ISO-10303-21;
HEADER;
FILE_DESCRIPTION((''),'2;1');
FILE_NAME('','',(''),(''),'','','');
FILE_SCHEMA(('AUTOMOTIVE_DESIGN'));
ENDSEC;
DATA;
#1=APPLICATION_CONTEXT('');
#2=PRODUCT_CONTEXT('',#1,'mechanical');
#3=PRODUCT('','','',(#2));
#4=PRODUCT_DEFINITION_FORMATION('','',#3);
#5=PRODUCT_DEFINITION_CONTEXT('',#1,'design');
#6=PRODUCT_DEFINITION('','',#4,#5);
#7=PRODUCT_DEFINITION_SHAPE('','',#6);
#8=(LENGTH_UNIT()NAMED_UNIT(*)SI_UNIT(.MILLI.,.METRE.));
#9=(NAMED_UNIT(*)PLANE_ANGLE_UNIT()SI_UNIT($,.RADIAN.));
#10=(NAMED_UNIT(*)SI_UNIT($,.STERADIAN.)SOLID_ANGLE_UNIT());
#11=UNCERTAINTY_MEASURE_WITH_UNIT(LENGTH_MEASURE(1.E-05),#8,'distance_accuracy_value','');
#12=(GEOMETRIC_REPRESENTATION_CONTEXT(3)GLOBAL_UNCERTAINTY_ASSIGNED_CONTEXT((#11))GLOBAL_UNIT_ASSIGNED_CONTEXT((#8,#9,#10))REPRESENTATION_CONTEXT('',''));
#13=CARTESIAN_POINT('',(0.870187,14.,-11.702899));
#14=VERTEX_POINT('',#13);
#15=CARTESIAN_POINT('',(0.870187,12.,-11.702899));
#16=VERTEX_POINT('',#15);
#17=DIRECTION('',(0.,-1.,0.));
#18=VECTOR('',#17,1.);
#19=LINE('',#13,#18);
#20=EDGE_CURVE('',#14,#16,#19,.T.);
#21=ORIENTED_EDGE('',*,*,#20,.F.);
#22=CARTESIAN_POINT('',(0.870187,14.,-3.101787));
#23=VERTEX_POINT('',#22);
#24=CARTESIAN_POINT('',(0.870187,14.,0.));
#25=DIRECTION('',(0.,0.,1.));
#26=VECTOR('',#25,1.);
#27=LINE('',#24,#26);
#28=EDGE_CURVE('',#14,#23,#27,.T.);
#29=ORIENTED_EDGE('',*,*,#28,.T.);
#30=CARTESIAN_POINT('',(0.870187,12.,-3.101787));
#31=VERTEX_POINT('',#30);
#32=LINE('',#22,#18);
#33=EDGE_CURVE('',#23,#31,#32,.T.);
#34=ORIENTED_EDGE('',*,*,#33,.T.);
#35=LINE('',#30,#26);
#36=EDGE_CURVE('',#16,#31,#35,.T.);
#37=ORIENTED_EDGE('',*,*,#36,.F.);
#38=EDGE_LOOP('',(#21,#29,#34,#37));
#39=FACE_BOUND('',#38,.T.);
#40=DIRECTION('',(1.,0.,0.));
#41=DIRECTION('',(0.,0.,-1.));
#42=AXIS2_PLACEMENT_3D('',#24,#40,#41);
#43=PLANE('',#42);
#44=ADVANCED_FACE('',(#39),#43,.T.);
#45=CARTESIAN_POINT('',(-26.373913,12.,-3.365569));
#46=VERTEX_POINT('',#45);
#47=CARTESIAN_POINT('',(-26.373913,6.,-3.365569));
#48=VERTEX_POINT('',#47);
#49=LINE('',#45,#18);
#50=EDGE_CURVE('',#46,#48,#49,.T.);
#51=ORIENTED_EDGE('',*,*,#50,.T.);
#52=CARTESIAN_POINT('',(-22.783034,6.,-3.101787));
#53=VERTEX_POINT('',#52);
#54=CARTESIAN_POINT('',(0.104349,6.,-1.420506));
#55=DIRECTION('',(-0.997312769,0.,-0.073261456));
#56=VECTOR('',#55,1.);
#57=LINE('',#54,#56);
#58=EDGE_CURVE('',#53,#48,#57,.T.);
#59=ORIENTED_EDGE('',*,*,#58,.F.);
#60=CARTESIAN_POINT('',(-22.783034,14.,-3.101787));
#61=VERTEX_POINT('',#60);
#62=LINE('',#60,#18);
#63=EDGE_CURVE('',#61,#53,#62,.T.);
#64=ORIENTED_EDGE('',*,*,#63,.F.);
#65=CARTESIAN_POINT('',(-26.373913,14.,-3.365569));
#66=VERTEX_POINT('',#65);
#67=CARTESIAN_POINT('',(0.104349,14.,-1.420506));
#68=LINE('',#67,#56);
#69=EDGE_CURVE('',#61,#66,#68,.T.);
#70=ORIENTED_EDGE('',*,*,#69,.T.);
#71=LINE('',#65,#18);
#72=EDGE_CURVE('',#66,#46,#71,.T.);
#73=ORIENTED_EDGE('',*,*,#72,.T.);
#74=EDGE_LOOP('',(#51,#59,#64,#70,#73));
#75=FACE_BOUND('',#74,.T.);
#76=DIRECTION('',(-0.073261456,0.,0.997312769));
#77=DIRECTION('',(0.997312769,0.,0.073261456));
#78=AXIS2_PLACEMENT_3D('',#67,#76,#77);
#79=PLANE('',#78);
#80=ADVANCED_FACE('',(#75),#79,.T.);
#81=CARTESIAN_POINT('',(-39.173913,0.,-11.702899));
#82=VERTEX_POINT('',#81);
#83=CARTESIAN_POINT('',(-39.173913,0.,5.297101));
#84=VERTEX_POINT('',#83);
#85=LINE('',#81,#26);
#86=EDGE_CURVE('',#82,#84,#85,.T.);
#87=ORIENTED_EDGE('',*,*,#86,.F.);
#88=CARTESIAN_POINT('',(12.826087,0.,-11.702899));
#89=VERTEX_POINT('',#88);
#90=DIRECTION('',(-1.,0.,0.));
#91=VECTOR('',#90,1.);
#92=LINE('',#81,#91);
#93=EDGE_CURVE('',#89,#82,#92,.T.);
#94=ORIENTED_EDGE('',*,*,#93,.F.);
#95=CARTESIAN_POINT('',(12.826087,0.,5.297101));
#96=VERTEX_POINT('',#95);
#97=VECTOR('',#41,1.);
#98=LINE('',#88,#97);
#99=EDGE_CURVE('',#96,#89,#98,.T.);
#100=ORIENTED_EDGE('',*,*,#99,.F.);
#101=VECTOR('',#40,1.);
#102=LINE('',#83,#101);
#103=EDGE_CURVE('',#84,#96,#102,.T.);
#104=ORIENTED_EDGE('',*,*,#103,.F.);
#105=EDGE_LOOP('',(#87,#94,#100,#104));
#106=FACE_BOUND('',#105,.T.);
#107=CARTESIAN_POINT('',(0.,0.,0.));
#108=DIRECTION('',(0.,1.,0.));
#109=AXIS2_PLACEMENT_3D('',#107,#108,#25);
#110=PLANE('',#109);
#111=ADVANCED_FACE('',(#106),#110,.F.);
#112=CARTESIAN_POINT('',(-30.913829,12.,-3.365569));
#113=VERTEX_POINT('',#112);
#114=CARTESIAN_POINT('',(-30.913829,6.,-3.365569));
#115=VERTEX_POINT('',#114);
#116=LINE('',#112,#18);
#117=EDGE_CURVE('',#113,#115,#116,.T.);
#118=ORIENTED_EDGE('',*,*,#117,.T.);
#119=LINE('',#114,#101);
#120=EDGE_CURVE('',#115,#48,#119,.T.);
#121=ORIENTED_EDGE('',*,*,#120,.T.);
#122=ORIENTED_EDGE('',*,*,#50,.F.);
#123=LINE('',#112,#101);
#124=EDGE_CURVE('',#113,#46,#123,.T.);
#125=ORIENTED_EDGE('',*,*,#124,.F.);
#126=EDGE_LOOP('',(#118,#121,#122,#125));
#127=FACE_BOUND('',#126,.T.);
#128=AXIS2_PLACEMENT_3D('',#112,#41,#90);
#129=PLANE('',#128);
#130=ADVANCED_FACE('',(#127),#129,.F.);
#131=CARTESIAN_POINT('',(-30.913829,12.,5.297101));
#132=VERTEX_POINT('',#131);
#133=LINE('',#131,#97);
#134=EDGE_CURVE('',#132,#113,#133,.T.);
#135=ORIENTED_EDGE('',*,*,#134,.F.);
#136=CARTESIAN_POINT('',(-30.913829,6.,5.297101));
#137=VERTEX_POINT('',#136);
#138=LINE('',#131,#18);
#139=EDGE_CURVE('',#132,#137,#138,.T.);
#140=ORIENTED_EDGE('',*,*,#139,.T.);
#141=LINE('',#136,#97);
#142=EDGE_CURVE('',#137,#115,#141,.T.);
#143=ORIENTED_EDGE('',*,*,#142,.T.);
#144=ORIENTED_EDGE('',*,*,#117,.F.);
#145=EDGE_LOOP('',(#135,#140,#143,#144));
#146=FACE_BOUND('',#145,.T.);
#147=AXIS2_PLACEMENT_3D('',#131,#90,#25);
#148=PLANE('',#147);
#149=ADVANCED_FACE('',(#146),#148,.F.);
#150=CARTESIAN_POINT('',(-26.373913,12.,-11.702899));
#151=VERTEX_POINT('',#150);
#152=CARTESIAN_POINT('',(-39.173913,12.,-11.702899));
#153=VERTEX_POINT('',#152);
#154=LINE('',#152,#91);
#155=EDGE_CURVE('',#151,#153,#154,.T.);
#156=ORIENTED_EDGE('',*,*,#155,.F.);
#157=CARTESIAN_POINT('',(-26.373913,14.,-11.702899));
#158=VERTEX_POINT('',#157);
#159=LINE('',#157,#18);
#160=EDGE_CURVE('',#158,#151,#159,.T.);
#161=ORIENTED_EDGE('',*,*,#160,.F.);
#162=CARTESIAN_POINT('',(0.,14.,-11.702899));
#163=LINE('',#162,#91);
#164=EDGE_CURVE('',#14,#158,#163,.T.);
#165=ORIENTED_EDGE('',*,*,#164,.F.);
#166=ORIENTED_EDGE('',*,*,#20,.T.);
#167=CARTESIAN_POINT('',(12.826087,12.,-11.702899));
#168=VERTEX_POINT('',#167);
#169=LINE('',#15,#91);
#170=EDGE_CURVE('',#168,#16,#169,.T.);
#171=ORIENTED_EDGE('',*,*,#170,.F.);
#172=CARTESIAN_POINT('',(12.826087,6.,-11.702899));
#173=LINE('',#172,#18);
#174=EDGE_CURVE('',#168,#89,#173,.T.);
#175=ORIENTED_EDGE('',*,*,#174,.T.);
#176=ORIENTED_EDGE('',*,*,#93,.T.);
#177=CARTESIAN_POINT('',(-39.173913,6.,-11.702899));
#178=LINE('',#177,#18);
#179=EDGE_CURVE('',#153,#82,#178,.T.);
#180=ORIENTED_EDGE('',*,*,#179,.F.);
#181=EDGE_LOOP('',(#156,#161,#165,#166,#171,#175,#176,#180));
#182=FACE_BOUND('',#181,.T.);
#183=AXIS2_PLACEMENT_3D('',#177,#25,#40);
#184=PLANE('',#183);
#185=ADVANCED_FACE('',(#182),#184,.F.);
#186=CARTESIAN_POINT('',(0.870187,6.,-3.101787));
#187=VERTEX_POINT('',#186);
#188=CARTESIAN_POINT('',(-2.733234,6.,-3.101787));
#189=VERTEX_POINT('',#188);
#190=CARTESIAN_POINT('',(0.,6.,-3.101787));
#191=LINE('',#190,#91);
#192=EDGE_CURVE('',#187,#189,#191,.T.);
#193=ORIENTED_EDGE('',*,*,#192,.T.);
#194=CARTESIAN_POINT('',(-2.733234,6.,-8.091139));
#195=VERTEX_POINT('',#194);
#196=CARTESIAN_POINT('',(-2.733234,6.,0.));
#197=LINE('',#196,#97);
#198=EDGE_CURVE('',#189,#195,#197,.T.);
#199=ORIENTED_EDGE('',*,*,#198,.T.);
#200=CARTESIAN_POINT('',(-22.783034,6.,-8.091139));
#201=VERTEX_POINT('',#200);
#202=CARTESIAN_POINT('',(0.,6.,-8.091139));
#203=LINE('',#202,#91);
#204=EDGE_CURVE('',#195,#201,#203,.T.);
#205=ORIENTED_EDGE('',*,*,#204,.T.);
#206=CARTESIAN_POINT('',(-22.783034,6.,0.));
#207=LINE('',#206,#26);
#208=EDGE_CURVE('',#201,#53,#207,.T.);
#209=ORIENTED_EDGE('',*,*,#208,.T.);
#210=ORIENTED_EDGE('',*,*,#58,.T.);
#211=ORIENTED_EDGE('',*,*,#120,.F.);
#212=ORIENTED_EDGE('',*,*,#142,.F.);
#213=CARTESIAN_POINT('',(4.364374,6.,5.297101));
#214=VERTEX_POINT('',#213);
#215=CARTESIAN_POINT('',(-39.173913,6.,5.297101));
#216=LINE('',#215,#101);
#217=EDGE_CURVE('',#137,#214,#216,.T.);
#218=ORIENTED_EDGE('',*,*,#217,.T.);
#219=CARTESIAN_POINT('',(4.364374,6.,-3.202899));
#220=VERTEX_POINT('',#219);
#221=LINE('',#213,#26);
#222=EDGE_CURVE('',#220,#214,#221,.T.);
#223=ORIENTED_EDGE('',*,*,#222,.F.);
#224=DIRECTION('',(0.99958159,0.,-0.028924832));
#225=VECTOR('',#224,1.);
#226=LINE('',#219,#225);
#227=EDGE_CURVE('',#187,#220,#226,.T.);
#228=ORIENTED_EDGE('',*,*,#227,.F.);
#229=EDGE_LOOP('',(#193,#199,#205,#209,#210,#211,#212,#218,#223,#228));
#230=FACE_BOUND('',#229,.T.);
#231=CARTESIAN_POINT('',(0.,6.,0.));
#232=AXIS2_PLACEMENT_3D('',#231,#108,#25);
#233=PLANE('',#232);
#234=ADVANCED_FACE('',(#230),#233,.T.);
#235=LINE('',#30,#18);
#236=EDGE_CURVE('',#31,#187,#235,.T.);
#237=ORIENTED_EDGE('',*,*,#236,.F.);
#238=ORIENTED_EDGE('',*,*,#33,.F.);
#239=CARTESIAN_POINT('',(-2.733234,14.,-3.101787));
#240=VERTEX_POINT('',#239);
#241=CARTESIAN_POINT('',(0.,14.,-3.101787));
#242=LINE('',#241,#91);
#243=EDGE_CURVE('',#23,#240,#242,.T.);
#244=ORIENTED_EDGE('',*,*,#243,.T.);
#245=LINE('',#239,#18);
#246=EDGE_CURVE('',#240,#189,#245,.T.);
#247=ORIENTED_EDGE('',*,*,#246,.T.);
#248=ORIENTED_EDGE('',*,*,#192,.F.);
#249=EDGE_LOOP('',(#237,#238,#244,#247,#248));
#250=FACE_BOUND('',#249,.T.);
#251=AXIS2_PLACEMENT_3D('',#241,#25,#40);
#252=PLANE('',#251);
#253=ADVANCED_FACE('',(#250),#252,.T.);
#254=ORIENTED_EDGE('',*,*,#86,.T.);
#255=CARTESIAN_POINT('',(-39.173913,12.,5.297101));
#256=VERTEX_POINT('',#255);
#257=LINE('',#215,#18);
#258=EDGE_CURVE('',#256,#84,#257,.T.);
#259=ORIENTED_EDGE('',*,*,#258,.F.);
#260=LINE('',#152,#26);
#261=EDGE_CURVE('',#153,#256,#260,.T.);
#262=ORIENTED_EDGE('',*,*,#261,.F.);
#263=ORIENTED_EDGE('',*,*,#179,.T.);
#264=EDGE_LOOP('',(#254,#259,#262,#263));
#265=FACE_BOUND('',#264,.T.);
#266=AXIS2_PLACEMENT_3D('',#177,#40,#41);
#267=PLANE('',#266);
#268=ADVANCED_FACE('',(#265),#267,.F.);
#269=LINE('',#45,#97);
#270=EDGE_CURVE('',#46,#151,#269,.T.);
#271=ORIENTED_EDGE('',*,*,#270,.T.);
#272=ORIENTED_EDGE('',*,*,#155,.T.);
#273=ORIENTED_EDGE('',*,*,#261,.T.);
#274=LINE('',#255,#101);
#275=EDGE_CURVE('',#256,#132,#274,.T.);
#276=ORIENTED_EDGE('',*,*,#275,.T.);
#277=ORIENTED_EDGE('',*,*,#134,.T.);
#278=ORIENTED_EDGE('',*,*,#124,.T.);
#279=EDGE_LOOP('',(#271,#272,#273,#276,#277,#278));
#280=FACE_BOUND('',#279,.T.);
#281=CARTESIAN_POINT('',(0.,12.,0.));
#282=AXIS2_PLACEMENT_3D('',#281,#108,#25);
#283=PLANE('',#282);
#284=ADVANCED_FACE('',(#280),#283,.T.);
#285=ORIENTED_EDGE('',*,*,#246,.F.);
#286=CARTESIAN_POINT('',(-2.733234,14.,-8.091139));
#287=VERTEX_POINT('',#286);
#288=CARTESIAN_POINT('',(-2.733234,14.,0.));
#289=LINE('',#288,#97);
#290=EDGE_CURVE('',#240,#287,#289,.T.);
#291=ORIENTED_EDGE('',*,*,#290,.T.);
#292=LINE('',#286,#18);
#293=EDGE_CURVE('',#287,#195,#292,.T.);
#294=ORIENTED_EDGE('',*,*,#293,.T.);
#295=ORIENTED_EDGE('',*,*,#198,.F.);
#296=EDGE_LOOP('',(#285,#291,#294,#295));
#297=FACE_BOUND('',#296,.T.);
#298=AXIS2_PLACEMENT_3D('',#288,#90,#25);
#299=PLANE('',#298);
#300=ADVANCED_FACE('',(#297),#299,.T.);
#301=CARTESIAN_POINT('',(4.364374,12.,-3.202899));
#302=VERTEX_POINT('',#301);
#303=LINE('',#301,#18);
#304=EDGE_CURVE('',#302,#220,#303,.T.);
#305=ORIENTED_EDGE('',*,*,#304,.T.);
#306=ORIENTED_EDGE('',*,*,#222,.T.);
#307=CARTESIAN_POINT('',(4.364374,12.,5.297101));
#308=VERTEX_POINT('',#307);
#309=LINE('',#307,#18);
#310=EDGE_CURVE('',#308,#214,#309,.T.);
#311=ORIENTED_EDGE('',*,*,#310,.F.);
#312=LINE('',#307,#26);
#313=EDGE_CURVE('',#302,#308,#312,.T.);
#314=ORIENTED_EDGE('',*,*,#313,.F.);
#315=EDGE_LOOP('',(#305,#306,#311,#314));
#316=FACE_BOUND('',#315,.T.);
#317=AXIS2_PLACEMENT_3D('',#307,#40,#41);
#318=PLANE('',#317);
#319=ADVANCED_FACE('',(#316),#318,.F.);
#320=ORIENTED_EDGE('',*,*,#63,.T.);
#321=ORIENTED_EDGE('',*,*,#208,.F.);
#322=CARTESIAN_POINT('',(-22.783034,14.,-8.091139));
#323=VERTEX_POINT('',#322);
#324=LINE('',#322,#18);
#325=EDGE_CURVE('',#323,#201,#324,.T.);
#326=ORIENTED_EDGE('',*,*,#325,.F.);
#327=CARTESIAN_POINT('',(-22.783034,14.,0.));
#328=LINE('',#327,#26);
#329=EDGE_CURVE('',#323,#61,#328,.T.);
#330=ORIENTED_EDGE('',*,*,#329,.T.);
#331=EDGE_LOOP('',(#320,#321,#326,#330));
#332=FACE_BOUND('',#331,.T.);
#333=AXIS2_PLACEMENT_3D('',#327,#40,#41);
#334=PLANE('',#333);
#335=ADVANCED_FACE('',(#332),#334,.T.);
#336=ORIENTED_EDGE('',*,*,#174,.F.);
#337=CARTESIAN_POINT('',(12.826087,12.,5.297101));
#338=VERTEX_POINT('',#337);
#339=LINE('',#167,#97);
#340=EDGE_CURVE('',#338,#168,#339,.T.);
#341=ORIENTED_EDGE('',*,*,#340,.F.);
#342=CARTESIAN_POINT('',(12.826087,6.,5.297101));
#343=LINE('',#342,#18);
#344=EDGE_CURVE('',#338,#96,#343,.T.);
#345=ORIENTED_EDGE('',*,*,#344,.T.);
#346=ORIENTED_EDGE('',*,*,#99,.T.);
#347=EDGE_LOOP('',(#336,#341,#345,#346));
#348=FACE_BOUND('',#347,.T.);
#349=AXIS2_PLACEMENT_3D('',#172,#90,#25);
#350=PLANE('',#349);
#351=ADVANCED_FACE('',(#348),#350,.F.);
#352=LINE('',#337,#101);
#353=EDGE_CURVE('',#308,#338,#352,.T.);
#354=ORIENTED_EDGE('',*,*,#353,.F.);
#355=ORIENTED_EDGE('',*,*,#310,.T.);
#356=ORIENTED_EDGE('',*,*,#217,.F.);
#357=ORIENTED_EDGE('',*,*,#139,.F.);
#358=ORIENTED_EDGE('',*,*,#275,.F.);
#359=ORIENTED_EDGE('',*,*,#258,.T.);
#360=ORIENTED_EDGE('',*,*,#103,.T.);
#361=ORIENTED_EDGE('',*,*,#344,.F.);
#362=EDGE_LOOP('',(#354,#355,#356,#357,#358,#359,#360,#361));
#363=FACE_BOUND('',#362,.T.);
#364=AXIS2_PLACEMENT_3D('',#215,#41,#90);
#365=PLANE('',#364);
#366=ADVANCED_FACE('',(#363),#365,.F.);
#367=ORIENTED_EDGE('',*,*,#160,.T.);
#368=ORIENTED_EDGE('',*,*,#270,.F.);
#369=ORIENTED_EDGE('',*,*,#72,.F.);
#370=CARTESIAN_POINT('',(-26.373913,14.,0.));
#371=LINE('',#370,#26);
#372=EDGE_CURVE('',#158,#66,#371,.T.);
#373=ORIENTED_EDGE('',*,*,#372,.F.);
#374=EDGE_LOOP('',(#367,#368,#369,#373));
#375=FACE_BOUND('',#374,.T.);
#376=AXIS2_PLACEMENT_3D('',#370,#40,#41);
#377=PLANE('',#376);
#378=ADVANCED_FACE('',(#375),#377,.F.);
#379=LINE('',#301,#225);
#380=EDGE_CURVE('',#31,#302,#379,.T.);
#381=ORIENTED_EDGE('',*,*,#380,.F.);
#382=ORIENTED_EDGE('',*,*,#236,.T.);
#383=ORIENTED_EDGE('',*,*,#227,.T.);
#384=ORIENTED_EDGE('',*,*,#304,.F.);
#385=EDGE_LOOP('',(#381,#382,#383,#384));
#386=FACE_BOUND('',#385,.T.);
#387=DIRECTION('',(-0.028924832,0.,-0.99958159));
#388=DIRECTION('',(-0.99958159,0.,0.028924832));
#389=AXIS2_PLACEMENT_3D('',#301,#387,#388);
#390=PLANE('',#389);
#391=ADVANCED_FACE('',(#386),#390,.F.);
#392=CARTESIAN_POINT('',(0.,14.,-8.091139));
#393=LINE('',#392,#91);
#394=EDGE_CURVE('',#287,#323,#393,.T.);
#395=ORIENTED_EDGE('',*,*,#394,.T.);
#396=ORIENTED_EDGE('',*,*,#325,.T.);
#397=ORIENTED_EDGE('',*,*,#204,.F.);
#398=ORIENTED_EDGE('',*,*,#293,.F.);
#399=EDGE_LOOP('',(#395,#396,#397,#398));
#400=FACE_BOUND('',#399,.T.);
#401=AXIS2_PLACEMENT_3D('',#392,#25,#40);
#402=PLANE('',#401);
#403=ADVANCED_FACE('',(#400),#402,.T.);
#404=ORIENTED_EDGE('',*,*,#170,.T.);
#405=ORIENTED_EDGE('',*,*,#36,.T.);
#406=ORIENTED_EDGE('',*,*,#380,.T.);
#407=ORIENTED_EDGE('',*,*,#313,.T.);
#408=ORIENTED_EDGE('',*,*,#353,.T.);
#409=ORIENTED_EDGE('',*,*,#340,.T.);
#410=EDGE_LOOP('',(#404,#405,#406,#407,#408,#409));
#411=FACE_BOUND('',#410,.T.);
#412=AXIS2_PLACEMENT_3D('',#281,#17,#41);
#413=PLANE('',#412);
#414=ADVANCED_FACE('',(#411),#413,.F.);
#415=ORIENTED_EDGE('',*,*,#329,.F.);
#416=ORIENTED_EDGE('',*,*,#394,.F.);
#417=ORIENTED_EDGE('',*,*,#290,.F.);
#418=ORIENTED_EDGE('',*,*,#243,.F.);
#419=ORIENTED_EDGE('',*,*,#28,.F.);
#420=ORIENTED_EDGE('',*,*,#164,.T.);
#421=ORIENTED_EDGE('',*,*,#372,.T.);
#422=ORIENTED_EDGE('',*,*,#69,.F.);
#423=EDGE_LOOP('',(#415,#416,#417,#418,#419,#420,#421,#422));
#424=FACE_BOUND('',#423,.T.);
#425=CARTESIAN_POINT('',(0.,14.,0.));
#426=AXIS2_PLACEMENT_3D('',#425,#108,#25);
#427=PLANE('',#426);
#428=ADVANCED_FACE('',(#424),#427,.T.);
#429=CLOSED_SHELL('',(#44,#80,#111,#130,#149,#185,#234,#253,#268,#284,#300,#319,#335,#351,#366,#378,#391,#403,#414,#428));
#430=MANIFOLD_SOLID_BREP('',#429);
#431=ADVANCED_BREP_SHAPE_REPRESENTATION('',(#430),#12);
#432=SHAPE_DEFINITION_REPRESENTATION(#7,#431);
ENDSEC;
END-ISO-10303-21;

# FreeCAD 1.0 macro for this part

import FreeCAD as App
import Part
import Sketcher

V = App.Vector
Q = App.Units.Quantity


def add_polygon(sketch, points):
    """Adds a closed chain of lines whose ends are joined by coincident constraints."""
    first, n = sketch.GeometryCount, len(points)
    for a, b in zip(points, points[1:] + points[:1]):
        sketch.addGeometry(Part.LineSegment(App.Vector(*a, 0), App.Vector(*b, 0)), False)
    for i in range(n):
        sketch.addConstraint(Sketcher.Constraint("Coincident", first + i, 2, first + (i + 1) % n, 1))

doc = App.newDocument("Part")
body = doc.addObject("PartDesign::Body", "Body")

sketch1 = body.newObject("Sketcher::SketchObject", "Sketch")
sketch1.AttachmentSupport = (doc.getObject("XZ_Plane"), [""])
sketch1.MapMode = "FlatFace"
add_polygon(sketch1, [(-39, -12), (-39, 5), (13, 5), (13, -12)])
sketch1.addConstraint([
    Sketcher.Constraint("Vertical", 0),
    Sketcher.Constraint("Horizontal", 1),
    Sketcher.Constraint("Vertical", 2),
    Sketcher.Constraint("Horizontal", 3),
    Sketcher.Constraint("DistanceX", 1, 1, 1, 2, Q("52 mm")),
    Sketcher.Constraint("DistanceY", 0, 1, 0, 2, Q("17 mm")),
    Sketcher.Constraint("DistanceY", -1, 1, 0, 2, Q("5.297101 mm")),
    Sketcher.Constraint("DistanceX", 0, 2, -1, 1, Q("39.173913 mm")),
])
pad1 = body.newObject("PartDesign::Pad", "Pad")
pad1.Profile = sketch1
pad1.Length = 6
pad1.Reversed = True

sketch2 = body.newObject("Sketcher::SketchObject", "Sketch001")
sketch2.AttachmentSupport = (doc.getObject("XZ_Plane"), [""])
sketch2.MapMode = "FlatFace"
sketch2.AttachmentOffset = App.Placement(V(0, 0, -6), App.Rotation())
add_polygon(sketch2, [(-26.4, -11.7), (-39.2, -11.7), (-39.2, 5.3), (-30.9, 5.3), (-30.9, -3.4), (-26.4, -3.4)])
sketch2.addConstraint([
    Sketcher.Constraint("Horizontal", 0),
    Sketcher.Constraint("Vertical", 1),
    Sketcher.Constraint("Horizontal", 2),
    Sketcher.Constraint("Vertical", 3),
    Sketcher.Constraint("Horizontal", 4),
    Sketcher.Constraint("Vertical", 5),
    Sketcher.Constraint("DistanceY", 1, 1, 1, 2, Q("17 mm")),
    Sketcher.Constraint("DistanceX", 0, 2, 0, 1, Q("12.8 mm")),
    Sketcher.Constraint("DistanceY", 3, 2, 3, 1, Q("8.662671 mm")),
    Sketcher.Constraint("DistanceY", 0, 2, -1, 1, Q("11.702899 mm")),
    Sketcher.Constraint("DistanceX", 2, 1, 2, 2, Q("8.260084 mm")),
    Sketcher.Constraint("DistanceX", 2, 2, -1, 1, Q("30.913829 mm")),
])
pad2 = body.newObject("PartDesign::Pad", "Pad001")
pad2.Profile = sketch2
pad2.Length = 6
pad2.Reversed = True

sketch3 = body.newObject("Sketcher::SketchObject", "Sketch002")
sketch3.AttachmentSupport = (doc.getObject("XZ_Plane"), [""])
sketch3.MapMode = "FlatFace"
sketch3.AttachmentOffset = App.Placement(V(0, 0, -6), App.Rotation())
add_polygon(sketch3, [(0.9, -11.7), (-26.4, -11.7), (-26.4, -3.4), (-22.8, -3.1), (-22.8, -8.1), (-2.7, -8.1), (-2.7, -3.1), (0.9, -3.1)])
sketch3.addConstraint([
    Sketcher.Constraint("Horizontal", 0),
    Sketcher.Constraint("Vertical", 1),
    Sketcher.Constraint("Vertical", 3),
    Sketcher.Constraint("Horizontal", 4),
    Sketcher.Constraint("Vertical", 5),
    Sketcher.Constraint("Horizontal", 6),
    Sketcher.Constraint("Vertical", 7),
    Sketcher.Constraint("Horizontal", 2, 2, 5, 2),
    Sketcher.Constraint("DistanceX", 0, 2, 0, 1, Q("27.2441 mm")),
    Sketcher.Constraint("DistanceX", 4, 1, 4, 2, Q("20.0498 mm")),
    Sketcher.Constraint("DistanceX", 6, 1, 6, 2, Q("3.60342 mm")),
    Sketcher.Constraint("DistanceY", 1, 1, 1, 2, Q("8.337329 mm")),
    Sketcher.Constraint("DistanceY", 3, 2, 3, 1, Q("4.989351 mm")),
    Sketcher.Constraint("DistanceY", 7, 2, 7, 1, Q("8.601111 mm")),
    Sketcher.Constraint("DistanceY", 0, 2, -1, 1, Q("11.702899 mm")),
    Sketcher.Constraint("DistanceX", 0, 2, -1, 1, Q("26.373913 mm")),
])
pad3 = body.newObject("PartDesign::Pad", "Pad002")
pad3.Profile = sketch3
pad3.Length = 8
pad3.Reversed = True

sketch4 = body.newObject("Sketcher::SketchObject", "Sketch003")
sketch4.AttachmentSupport = (doc.getObject("XZ_Plane"), [""])
sketch4.MapMode = "FlatFace"
sketch4.AttachmentOffset = App.Placement(V(0, 0, -6), App.Rotation())
add_polygon(sketch4, [(12.8, -11.7), (0.9, -11.7), (0.9, -3.1), (4.4, -3.2), (4.4, 5.3), (12.8, 5.3)])
sketch4.addConstraint([
    Sketcher.Constraint("Horizontal", 0),
    Sketcher.Constraint("Vertical", 1),
    Sketcher.Constraint("Vertical", 3),
    Sketcher.Constraint("Horizontal", 4),
    Sketcher.Constraint("Vertical", 5),
    Sketcher.Constraint("DistanceY", 5, 2, 5, 1, Q("17 mm")),
    Sketcher.Constraint("DistanceY", 3, 1, 3, 2, Q("8.5 mm")),
    Sketcher.Constraint("DistanceX", 0, 2, 0, 1, Q("11.9559 mm")),
    Sketcher.Constraint("DistanceY", 1, 1, 1, 2, Q("8.601111 mm")),
    Sketcher.Constraint("DistanceY", 0, 2, -1, 1, Q("11.702899 mm")),
    Sketcher.Constraint("Distance", 2, Q("3.49565 mm")),
    Sketcher.Constraint("DistanceX", -1, 1, 0, 2, Q("0.870187 mm")),
])
pad4 = body.newObject("PartDesign::Pad", "Pad003")
pad4.Profile = sketch4
pad4.Length = 6
pad4.Reversed = True

doc.recompute()
